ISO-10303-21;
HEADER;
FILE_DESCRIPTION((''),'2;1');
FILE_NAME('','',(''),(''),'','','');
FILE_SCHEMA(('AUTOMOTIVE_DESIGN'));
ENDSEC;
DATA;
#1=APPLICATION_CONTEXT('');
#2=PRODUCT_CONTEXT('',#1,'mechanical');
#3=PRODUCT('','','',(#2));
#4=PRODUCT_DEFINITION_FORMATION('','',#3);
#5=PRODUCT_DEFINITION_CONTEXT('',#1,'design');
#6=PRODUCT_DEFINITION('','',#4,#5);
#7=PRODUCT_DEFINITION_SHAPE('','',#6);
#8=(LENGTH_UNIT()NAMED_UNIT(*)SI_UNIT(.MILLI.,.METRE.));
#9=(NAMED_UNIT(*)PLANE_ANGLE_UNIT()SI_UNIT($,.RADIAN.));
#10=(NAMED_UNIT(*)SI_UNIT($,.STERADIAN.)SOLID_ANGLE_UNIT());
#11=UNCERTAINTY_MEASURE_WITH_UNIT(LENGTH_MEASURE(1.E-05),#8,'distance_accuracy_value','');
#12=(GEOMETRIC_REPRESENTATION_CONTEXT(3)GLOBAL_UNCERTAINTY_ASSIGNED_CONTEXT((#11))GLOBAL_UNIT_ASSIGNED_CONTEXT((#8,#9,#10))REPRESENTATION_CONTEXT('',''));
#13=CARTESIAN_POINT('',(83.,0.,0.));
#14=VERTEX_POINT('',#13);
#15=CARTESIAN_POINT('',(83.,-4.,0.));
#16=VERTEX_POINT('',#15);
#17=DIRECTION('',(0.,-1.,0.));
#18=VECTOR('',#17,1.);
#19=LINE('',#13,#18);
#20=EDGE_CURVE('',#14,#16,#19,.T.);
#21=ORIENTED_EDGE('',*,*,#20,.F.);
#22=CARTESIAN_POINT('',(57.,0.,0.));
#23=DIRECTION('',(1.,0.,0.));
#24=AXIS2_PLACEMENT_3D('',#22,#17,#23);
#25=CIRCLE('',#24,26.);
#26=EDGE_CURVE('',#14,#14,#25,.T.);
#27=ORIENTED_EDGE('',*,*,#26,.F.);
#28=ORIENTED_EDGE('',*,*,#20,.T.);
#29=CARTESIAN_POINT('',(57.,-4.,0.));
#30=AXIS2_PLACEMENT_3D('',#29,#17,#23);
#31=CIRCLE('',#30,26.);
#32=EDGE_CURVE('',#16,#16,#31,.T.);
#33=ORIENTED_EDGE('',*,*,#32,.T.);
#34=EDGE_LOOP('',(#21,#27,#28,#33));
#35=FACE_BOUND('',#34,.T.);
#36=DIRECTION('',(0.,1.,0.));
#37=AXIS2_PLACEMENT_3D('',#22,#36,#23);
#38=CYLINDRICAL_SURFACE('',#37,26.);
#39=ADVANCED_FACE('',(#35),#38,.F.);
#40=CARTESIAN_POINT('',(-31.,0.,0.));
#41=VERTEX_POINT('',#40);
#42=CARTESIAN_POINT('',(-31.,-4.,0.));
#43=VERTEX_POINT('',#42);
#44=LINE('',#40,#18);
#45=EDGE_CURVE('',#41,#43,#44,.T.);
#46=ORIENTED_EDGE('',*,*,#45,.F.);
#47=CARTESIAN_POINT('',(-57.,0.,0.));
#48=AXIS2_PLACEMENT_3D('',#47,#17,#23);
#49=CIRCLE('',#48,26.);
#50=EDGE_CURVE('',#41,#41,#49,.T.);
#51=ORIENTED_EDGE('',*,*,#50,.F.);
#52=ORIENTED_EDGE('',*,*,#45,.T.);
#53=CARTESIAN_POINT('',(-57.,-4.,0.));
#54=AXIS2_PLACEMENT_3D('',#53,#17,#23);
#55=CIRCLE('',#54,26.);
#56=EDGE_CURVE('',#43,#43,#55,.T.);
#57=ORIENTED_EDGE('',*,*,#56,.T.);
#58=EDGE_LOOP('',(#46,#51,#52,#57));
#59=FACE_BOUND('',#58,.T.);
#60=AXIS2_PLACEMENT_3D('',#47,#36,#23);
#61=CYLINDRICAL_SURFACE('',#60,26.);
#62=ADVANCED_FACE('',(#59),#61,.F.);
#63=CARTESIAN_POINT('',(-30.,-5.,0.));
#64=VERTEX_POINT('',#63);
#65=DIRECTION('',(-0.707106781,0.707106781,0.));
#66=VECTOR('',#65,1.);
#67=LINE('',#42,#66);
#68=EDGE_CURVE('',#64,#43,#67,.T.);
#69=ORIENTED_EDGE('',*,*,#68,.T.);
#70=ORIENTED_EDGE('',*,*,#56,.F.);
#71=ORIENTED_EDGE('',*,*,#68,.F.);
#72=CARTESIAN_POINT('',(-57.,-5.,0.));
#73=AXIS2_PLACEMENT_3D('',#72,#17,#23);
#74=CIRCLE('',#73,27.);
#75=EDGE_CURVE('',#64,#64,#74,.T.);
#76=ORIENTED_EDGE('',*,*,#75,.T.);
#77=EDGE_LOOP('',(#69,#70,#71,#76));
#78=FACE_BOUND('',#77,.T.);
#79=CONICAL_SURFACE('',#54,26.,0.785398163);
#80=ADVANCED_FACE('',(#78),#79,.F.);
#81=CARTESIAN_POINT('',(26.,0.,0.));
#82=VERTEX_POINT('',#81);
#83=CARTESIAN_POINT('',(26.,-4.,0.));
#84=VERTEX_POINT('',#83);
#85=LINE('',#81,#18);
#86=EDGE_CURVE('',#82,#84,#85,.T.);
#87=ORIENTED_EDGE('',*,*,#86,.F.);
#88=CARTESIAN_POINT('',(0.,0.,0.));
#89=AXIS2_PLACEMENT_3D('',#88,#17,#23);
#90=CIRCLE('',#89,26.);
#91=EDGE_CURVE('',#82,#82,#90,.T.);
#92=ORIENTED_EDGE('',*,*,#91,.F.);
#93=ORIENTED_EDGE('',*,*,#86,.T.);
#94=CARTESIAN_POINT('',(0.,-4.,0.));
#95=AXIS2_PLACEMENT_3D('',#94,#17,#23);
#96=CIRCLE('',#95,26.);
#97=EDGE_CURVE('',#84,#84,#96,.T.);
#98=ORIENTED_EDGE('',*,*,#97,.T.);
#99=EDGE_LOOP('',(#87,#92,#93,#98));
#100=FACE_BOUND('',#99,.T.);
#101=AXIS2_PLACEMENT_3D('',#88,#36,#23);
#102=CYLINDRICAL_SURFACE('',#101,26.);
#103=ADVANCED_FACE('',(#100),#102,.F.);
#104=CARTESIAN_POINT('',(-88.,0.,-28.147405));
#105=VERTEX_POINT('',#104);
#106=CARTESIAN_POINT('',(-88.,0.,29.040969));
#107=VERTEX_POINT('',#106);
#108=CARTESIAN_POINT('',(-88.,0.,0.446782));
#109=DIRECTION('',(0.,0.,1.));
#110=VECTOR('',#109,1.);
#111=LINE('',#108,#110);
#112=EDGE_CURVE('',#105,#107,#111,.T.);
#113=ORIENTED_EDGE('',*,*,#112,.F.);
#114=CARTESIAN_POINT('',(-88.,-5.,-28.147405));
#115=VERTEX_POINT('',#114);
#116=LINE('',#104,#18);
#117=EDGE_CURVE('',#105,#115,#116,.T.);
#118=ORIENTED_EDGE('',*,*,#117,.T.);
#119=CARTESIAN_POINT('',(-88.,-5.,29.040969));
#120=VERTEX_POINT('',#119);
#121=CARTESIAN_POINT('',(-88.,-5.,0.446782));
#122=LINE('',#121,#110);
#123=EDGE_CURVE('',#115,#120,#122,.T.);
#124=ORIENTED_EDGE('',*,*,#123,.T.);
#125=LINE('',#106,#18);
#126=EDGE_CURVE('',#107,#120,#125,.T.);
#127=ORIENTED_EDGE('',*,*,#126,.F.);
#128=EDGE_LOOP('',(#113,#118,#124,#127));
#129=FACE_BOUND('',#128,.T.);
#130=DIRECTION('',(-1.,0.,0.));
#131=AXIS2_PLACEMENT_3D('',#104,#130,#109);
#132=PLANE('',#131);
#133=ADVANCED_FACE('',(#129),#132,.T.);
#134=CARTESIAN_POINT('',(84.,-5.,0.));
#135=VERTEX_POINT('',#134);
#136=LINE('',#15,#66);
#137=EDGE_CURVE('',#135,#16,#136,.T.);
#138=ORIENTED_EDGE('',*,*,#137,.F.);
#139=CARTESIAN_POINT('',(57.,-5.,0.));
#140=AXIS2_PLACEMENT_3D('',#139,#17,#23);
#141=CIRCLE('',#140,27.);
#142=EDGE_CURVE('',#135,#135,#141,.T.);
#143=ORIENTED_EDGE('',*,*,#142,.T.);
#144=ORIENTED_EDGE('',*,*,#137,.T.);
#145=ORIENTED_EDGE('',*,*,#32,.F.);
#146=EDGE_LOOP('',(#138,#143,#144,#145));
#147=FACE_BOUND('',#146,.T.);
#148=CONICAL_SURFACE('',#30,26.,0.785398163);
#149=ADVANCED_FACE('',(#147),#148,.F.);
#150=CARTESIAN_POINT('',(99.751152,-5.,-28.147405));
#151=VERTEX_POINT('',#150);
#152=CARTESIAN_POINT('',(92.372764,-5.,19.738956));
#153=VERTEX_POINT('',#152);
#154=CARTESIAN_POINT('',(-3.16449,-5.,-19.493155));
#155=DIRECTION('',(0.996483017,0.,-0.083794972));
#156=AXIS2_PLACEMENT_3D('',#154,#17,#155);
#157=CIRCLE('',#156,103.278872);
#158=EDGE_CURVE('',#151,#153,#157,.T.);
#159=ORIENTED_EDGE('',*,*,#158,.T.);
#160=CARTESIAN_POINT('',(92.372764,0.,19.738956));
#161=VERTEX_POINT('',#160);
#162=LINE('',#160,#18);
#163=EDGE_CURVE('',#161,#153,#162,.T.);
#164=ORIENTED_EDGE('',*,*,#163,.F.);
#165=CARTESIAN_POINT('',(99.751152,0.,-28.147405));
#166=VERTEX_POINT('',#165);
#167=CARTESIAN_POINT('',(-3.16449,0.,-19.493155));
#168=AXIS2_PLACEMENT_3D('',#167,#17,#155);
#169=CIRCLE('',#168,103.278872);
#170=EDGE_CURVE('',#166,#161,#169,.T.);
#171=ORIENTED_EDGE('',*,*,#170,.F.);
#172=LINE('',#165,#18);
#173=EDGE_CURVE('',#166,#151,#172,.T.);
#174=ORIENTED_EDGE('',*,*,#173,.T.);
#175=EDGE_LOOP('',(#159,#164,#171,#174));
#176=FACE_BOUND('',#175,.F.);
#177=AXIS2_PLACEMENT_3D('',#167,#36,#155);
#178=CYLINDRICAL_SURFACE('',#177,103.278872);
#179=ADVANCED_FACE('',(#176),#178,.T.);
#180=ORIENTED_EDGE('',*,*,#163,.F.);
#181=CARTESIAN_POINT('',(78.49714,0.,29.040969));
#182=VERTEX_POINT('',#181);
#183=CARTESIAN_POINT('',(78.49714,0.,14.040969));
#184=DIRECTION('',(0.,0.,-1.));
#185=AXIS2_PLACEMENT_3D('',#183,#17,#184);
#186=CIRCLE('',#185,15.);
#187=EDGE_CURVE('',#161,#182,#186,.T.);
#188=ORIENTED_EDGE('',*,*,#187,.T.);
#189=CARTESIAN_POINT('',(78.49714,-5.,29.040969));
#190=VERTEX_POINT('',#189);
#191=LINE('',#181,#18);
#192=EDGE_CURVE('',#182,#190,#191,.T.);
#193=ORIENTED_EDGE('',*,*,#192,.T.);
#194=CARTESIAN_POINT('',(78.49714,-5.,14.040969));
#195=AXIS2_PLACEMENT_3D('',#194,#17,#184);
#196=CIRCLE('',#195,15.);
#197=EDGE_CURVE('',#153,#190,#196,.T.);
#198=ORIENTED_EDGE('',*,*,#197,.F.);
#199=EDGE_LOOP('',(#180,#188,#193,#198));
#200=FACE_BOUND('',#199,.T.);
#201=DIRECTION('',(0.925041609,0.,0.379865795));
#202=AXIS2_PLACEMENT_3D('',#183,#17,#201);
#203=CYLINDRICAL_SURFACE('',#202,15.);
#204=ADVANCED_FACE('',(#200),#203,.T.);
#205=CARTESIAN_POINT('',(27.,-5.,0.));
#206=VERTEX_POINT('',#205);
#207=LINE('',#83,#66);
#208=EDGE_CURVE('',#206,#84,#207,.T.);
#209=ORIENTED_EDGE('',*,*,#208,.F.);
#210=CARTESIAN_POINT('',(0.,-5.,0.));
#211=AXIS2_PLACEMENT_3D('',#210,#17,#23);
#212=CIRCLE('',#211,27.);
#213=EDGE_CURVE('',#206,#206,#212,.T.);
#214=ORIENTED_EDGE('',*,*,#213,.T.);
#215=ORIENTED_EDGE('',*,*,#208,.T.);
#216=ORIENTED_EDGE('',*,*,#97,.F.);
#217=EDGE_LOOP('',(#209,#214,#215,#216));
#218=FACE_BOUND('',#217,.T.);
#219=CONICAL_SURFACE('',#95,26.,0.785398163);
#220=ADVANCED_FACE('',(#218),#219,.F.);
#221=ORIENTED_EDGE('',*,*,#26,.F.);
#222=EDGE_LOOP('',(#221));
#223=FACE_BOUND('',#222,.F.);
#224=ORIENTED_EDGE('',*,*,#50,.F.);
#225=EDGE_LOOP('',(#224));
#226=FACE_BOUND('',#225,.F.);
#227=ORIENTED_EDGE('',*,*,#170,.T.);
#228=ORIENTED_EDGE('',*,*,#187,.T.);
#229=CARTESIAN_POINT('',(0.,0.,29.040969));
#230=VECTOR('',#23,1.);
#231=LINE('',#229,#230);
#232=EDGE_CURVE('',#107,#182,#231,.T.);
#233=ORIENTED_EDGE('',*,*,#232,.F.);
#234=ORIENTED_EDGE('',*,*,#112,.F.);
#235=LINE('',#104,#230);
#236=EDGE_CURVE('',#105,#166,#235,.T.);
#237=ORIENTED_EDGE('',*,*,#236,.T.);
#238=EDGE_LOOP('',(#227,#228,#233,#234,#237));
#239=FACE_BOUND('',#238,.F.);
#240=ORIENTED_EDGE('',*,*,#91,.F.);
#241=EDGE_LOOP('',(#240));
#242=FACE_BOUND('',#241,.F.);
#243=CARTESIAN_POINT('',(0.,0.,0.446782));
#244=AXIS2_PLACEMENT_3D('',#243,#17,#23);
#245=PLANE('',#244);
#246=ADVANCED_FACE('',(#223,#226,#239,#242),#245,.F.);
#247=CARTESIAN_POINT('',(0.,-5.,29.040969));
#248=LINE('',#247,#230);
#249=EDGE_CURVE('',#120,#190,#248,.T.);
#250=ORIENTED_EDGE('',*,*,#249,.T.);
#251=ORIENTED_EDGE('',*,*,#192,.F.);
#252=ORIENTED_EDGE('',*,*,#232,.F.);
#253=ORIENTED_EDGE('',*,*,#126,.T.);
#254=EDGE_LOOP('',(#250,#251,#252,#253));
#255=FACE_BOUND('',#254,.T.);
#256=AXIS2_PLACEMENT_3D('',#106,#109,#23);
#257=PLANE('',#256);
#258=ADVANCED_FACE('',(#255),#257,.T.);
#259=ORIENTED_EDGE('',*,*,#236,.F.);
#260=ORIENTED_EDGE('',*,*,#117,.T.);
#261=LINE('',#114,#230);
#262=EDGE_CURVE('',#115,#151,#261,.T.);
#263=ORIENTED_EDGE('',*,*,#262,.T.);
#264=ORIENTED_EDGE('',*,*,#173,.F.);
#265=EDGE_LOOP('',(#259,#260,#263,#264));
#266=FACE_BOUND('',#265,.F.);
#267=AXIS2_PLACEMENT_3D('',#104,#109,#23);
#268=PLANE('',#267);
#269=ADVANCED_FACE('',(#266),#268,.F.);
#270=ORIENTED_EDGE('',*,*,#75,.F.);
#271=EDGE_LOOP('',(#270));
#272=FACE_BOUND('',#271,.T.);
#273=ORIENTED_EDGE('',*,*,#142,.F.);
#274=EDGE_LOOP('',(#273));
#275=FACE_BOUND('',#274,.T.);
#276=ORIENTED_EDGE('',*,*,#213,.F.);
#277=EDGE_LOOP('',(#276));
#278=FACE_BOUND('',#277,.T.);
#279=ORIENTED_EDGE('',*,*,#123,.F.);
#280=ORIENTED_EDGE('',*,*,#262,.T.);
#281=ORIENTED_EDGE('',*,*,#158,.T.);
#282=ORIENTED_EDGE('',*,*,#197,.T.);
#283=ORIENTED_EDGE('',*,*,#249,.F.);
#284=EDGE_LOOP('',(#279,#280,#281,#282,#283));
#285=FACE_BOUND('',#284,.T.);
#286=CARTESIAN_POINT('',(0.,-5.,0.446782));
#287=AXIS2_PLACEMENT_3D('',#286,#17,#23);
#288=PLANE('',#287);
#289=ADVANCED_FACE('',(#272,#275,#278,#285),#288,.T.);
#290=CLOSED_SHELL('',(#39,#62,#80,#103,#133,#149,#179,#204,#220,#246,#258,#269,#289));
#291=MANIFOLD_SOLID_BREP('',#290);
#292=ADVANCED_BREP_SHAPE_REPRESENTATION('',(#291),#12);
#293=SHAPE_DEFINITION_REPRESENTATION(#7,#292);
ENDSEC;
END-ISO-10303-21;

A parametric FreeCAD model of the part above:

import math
import FreeCAD as App
import Part
import Sketcher

V = App.Vector
Q = App.Units.Quantity


def edges_at(feature, points):
    """Names of the edges that pass closest to the given points."""
    edges = feature.Shape.Edges
    near = lambda p: min(range(len(edges)), key=lambda i: edges[i].distToShape(Part.Vertex(*p))[0])
    return sorted({f"Edge{near(p) + 1}" for p in points})

doc = App.newDocument("Part")
body = doc.addObject("PartDesign::Body", "Body")

# Sketch on XZ plane
sketch1 = body.newObject("Sketcher::SketchObject", "Sketch")
sketch1.AttachmentSupport = (doc.getObject("XZ_Plane"), [""])
sketch1.MapMode = "FlatFace"
sketch1.addGeometry(Part.LineSegment(V(-88, 29, 0), V(-88, -28, 0)), False)
sketch1.addGeometry(Part.LineSegment(V(-88, -28, 0), V(100, -28, 0)), False)
sketch1.addGeometry(Part.ArcOfCircle(Part.Circle(V(-3, -19, 0), V(0, 0, 1), 103), math.radians(-5), math.radians(28)), False)
sketch1.addGeometry(Part.LineSegment(V(88, 29, 0), V(-88, 29, 0)), False)
sketch1.addGeometry(Part.Circle(V(-57, 0, 0), V(0, 0, 1), 26), False)
sketch1.addGeometry(Part.Circle(V(0, 0, 0), V(0, 0, 1), 26), False)
sketch1.addGeometry(Part.Circle(V(57, 0, 0), V(0, 0, 1), 26), False)
sketch1.addConstraint(Sketcher.Constraint("Coincident", 0, 2, 1, 1))
sketch1.addConstraint(Sketcher.Constraint("Coincident", 1, 2, 2, 1))
sketch1.addConstraint(Sketcher.Constraint("Coincident", 2, 2, 3, 1))
sketch1.addConstraint(Sketcher.Constraint("Coincident", 3, 2, 0, 1))
sketch1.addConstraint(Sketcher.Constraint("Vertical", 0))
sketch1.addConstraint(Sketcher.Constraint("Horizontal", 1))
sketch1.addConstraint(Sketcher.Constraint("Horizontal", 3))
sketch1.addConstraint(Sketcher.Constraint("Coincident", 5, 3, -1, 1))
sketch1.addConstraint(Sketcher.Constraint("Equal", 4, 5))
sketch1.addConstraint(Sketcher.Constraint("Equal", 5, 6))
sketch1.addConstraint(Sketcher.Constraint("Symmetric", 4, 3, 6, 3, -1, 1))
sketch1.addConstraint(Sketcher.Constraint("PointOnObject", 4, 3, -1))
sketch1.addConstraint(Sketcher.Constraint("Diameter", 4, Q("52 mm")))
sketch1.addConstraint(Sketcher.Constraint("DistanceX", 3, 2, 3, 1, Q("176 mm")))
sketch1.addConstraint(Sketcher.Constraint("DistanceX", 4, 3, -1, 1, Q("57 mm")))
sketch1.addConstraint(Sketcher.Constraint("DistanceX", 0, 2, -1, 1, Q("88 mm")))
sketch1.addConstraint(Sketcher.Constraint("Radius", 2, Q("103.278872 mm")))
sketch1.addConstraint(Sketcher.Constraint("DistanceX", 1, 1, 1, 2, Q("187.751152 mm")))
sketch1.addConstraint(Sketcher.Constraint("DistanceY", 0, 2, 0, 1, Q("57.188374 mm")))
sketch1.addConstraint(Sketcher.Constraint("DistanceY", -1, 1, 2, 2, Q("29.040969 mm")))
pad1 = body.newObject("PartDesign::Pad", "Pad")
pad1.Profile = sketch1
pad1.Length = 5
doc.recompute()

fillet = body.newObject("PartDesign::Fillet", "Fillet")
fillet.Base = (pad1, edges_at(pad1, [(88, -2.5, 29.041)]))
fillet.Radius = 15
doc.recompute()

chamfer = body.newObject("PartDesign::Chamfer", "Chamfer")
chamfer.Base = (fillet, edges_at(fillet, [(-83, -5, 0), (-26, -5, 0), (31, -5, 0)]))
chamfer.Size = 1

doc.recompute()
